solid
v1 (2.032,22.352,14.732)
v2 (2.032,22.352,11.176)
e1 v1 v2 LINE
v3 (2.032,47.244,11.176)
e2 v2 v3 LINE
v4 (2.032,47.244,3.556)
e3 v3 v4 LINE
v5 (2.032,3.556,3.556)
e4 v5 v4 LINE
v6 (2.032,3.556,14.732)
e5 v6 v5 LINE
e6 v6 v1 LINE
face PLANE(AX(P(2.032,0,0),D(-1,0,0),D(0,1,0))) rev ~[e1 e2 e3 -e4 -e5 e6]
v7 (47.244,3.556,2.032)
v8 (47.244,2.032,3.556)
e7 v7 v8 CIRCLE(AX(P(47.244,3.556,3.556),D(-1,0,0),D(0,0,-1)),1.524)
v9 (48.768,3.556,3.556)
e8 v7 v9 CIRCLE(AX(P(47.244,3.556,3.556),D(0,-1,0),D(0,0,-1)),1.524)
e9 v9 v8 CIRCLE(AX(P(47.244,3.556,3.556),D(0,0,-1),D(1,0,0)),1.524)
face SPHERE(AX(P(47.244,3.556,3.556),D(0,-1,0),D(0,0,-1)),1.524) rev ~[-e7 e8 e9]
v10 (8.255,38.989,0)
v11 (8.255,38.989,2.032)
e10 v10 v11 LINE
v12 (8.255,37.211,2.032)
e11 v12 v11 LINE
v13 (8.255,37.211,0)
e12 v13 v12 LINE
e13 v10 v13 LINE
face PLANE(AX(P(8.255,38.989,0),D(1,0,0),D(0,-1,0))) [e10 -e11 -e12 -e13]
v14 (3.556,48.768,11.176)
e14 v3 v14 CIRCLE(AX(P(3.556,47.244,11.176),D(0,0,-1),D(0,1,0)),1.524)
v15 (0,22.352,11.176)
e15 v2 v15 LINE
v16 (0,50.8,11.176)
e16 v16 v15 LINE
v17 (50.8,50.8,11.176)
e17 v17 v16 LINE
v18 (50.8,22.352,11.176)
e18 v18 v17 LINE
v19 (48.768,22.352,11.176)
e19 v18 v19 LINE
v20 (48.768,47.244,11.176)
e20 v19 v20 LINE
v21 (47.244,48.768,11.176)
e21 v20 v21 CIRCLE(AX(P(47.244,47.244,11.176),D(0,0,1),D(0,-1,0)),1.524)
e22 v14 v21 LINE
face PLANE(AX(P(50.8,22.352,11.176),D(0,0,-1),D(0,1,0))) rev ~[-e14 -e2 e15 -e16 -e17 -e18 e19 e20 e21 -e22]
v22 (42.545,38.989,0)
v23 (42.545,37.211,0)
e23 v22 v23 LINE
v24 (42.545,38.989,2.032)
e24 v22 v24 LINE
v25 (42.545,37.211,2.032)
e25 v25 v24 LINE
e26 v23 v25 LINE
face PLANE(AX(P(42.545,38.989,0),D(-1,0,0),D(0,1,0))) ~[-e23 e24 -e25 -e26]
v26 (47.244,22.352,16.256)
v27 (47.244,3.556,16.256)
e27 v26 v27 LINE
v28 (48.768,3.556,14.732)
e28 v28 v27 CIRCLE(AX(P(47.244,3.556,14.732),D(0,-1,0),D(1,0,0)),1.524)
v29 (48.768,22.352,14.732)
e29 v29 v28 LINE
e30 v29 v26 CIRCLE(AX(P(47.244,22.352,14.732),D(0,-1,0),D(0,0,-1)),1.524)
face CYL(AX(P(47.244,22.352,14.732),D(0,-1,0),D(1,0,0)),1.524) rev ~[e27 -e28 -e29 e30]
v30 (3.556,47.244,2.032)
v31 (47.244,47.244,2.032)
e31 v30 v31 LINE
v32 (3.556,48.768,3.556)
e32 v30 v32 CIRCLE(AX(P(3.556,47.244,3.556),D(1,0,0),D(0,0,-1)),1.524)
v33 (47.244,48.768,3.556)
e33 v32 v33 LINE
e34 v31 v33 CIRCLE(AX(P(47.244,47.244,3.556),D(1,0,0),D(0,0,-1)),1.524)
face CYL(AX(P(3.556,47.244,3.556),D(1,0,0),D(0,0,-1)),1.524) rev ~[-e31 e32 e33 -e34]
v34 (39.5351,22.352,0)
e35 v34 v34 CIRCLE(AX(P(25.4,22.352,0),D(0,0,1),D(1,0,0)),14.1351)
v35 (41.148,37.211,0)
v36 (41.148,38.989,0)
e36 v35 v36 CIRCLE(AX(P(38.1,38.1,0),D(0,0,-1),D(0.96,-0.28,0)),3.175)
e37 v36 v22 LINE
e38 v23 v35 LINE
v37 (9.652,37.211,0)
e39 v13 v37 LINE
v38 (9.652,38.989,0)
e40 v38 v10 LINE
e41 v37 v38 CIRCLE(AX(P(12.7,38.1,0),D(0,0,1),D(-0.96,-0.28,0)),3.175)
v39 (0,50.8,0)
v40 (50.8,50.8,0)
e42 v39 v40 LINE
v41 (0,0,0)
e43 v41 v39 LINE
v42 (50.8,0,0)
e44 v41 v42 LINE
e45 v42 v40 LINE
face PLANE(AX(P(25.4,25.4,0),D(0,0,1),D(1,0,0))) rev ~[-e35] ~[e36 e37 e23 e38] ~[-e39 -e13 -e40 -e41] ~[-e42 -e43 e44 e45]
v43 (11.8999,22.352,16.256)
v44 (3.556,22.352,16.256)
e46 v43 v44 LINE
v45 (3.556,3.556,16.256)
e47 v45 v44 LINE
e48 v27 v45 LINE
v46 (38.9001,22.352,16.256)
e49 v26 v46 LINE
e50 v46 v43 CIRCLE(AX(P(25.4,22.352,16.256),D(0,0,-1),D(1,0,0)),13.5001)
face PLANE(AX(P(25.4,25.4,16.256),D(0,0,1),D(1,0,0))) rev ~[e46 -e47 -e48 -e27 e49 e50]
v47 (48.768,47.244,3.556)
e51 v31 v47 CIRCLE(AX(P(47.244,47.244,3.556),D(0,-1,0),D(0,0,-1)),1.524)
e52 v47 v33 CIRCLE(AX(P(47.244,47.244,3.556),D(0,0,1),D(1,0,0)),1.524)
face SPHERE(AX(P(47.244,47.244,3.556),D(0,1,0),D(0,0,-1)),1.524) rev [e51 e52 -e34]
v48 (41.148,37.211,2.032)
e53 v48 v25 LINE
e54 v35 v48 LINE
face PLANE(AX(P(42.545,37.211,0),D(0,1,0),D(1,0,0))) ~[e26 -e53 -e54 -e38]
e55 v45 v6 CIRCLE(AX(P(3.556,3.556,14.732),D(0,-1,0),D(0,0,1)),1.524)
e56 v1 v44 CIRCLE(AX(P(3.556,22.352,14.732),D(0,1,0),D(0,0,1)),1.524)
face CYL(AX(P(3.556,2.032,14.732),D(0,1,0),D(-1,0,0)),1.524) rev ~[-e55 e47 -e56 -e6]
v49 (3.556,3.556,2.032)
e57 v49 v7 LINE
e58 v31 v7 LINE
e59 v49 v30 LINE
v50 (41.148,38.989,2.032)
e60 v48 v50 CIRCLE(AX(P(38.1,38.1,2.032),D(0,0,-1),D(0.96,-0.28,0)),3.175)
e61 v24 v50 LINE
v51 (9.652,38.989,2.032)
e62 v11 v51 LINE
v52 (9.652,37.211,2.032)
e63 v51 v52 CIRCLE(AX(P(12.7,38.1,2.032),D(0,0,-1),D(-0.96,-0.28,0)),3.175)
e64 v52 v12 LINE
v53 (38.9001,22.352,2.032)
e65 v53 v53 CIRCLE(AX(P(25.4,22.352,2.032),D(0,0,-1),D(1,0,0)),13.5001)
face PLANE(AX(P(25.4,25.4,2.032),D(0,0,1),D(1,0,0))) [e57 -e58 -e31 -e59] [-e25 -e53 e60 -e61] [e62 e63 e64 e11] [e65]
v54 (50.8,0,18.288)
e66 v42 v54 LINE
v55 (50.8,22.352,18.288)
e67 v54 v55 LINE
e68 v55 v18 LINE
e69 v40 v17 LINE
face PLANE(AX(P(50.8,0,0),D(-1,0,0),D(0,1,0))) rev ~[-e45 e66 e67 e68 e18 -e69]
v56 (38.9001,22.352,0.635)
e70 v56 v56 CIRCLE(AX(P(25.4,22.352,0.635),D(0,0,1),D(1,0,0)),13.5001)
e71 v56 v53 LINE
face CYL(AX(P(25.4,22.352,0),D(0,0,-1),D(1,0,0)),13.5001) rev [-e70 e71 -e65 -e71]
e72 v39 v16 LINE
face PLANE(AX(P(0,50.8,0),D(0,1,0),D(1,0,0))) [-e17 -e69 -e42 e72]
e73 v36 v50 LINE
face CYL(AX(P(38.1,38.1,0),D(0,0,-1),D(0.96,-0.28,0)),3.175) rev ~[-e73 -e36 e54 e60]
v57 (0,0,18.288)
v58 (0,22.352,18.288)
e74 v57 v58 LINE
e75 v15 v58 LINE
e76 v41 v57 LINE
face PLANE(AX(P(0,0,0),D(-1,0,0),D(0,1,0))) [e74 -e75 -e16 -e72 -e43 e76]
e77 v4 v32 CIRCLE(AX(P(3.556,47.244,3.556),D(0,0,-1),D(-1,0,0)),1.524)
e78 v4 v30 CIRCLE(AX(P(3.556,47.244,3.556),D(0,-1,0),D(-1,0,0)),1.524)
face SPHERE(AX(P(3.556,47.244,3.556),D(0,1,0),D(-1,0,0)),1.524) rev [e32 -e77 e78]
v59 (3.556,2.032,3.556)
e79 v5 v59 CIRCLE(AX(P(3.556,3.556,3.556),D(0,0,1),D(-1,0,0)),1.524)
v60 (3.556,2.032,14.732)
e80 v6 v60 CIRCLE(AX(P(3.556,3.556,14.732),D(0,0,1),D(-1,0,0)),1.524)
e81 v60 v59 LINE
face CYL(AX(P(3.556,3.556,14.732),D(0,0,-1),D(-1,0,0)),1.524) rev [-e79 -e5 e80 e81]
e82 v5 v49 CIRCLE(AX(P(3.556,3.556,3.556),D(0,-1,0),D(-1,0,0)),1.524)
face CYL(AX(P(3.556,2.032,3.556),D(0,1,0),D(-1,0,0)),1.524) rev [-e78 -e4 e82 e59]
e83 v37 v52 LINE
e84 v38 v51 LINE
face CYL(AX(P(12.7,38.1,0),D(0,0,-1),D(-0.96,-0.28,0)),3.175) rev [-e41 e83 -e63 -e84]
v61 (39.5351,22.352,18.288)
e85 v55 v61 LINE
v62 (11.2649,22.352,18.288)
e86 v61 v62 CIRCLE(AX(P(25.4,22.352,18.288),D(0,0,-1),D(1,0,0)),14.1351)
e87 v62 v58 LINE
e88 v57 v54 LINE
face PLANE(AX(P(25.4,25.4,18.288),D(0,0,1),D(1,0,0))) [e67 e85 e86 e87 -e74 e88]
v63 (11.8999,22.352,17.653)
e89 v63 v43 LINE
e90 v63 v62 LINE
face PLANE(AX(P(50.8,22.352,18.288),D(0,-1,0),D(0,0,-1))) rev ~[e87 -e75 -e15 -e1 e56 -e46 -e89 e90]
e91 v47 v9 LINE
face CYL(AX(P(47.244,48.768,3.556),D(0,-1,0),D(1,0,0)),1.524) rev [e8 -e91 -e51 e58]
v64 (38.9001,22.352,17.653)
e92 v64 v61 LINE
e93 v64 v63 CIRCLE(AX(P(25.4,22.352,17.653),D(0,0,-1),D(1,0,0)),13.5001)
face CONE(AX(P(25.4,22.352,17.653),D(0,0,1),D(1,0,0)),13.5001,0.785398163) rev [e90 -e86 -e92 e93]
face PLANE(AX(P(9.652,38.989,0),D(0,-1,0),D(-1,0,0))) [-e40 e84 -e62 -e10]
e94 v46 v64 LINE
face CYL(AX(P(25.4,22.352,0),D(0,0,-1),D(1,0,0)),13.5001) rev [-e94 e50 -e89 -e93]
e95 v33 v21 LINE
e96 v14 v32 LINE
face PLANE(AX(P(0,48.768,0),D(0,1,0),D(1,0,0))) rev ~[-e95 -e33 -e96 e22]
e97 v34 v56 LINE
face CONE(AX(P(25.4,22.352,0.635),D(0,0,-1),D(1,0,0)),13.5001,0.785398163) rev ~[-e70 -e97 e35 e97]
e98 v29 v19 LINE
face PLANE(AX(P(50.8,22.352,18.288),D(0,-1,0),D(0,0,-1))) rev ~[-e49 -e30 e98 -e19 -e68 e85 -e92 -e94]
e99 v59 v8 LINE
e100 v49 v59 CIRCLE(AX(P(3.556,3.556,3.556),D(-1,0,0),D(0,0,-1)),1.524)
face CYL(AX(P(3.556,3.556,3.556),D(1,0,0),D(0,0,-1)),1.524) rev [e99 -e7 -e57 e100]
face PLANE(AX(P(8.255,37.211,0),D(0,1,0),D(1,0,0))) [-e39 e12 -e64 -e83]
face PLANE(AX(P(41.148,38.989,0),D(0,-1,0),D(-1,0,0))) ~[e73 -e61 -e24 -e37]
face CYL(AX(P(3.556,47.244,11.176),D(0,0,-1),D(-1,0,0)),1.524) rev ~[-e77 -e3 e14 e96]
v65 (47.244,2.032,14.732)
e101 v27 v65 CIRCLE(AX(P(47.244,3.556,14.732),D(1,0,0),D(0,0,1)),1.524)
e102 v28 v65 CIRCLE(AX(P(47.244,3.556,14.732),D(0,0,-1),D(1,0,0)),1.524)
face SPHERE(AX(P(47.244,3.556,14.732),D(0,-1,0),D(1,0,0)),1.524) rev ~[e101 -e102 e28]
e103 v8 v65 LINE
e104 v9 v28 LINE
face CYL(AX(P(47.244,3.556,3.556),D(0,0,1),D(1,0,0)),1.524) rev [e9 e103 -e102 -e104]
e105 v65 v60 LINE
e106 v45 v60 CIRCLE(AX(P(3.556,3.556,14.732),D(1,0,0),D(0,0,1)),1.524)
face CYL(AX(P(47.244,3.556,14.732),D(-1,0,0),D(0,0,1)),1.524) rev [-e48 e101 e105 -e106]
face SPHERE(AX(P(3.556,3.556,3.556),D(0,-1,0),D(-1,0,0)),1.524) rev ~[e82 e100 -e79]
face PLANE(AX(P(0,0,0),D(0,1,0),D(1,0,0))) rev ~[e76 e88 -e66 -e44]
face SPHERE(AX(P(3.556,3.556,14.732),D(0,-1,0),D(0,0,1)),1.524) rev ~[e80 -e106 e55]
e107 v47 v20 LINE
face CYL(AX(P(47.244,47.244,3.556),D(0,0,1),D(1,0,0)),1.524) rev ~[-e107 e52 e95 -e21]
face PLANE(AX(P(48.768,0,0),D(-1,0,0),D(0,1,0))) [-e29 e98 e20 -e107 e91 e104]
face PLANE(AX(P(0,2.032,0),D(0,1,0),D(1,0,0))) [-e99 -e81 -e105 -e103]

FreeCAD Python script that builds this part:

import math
import FreeCAD as App
import Part
import Sketcher

V = App.Vector
Q = App.Units.Quantity


def edges_at(feature, points):
    """Names of the edges that pass closest to the given points."""
    edges = feature.Shape.Edges
    near = lambda p: min(range(len(edges)), key=lambda i: edges[i].distToShape(Part.Vertex(*p))[0])
    return sorted({f"Edge{near(p) + 1}" for p in points})


def faces_at(feature, points):
    """Names of the faces that lie closest to the given points."""
    faces = feature.Shape.Faces
    near = lambda p: min(range(len(faces)), key=lambda i: faces[i].distToShape(Part.Vertex(*p))[0])
    return sorted({f"Face{near(p) + 1}" for p in points})

doc = App.newDocument("Part")
body = doc.addObject("PartDesign::Body", "Body")

# Sketch on XY plane
sketch1 = doc.addObject("Sketcher::SketchObject", "Sketch")
body.addObject(sketch1)
sketch1.AttachmentSupport = (doc.XY_Plane, [""])
sketch1.MapMode = "FlatFace"
sketch1.addGeometry([
    Part.LineSegment(V(0, 51, 0), V(0, 0, 0)),
    Part.LineSegment(V(0, 0, 0), V(51, 0, 0)),
    Part.LineSegment(V(51, 0, 0), V(51, 51, 0)),
    Part.LineSegment(V(51, 51, 0), V(0, 51, 0)),
], False)
sketch1.addConstraint([
    Sketcher.Constraint("Coincident", 0, 2, 1, 1),
    Sketcher.Constraint("Coincident", 1, 2, 2, 1),
    Sketcher.Constraint("Coincident", 2, 2, 3, 1),
    Sketcher.Constraint("Coincident", 3, 2, 0, 1),
    Sketcher.Constraint("Vertical", 0),
    Sketcher.Constraint("Horizontal", 1),
    Sketcher.Constraint("Vertical", 2),
    Sketcher.Constraint("Horizontal", 3),
    Sketcher.Constraint("Coincident", 0, 2, -1, 1),
    Sketcher.Constraint("Equal", 3, 0),
    Sketcher.Constraint("DistanceX", 1, 1, 1, 2, Q("2 in")),
])
pad1 = doc.addObject("PartDesign::Pad", "Pad")
body.addObject(pad1)
pad1.Profile = sketch1
pad1.Length = Q("0.72 in")

# Sketch on YZ plane
sketch2 = doc.addObject("Sketcher::SketchObject", "Sketch001")
body.addObject(sketch2)
sketch2.AttachmentSupport = (doc.YZ_Plane, [""])
sketch2.MapMode = "FlatFace"
sketch2.AttachmentOffset = App.Placement(V(0, 0, 2 * 25.4), App.Rotation())
sketch2.addGeometry([
    Part.LineSegment(V(51, 18, 0), V(22, 18, 0)),
    Part.LineSegment(V(22, 18, 0), V(22, 11, 0)),
    Part.LineSegment(V(22, 11, 0), V(51, 11, 0)),
    Part.LineSegment(V(51, 11, 0), V(51, 18, 0)),
], False)
sketch2.addConstraint([
    Sketcher.Constraint("Coincident", 0, 2, 1, 1),
    Sketcher.Constraint("Coincident", 1, 2, 2, 1),
    Sketcher.Constraint("Coincident", 2, 2, 3, 1),
    Sketcher.Constraint("Coincident", 3, 2, 0, 1),
    Sketcher.Constraint("Horizontal", 0),
    Sketcher.Constraint("Vertical", 1),
    Sketcher.Constraint("Horizontal", 2),
    Sketcher.Constraint("Vertical", 3),
    Sketcher.Constraint("DistanceX", -1, 1, 2, 2, Q("2 in")),
    Sketcher.Constraint("DistanceX", 0, 2, 0, 1, Q("1.12 in")),
    Sketcher.Constraint("DistanceY", 1, 2, 1, 1, Q("0.28 in")),
    Sketcher.Constraint("DistanceY", -1, 1, 0, 2, Q("0.72 in")),
])
pocket1 = doc.addObject("PartDesign::Pocket", "Pocket")
body.addObject(pocket1)
pocket1.Profile = sketch2
pocket1.Type = "ThroughAll"
doc.recompute()

thickness = doc.addObject("PartDesign::Thickness", "Thickness")
body.addObject(thickness)
thickness.Base = (pocket1, faces_at(pocket1, [(25.4, 36.576, 11.176), (25.4, 22.352, 14.732)]))
thickness.Value = Q("0.08 in")
thickness.Reversed = True
thickness.Join = "Intersection"

# Sketch on XY plane
sketch3 = doc.addObject("Sketcher::SketchObject", "Sketch002")
body.addObject(sketch3)
sketch3.AttachmentSupport = (doc.XY_Plane, [""])
sketch3.MapMode = "FlatFace"
sketch3.addGeometry(Part.Circle(V(25, 22, 0), V(0, 0, 1), 14), False)
sketch3.addConstraint([
    Sketcher.Constraint("Diameter", 0, Q("1.063 in")),
    Sketcher.Constraint("DistanceX", -1, 1, 0, 3, Q("1 in")),
    Sketcher.Constraint("DistanceY", -1, 1, 0, 3, Q("0.88 in")),
])
pocket2 = doc.addObject("PartDesign::Pocket", "Pocket001")
body.addObject(pocket2)
pocket2.Profile = sketch3
pocket2.Type = "ThroughAll"
pocket2.Reversed = True
doc.recompute()

fillet = doc.addObject("PartDesign::Fillet", "Fillet")
body.addObject(fillet)
fillet.Base = (pocket2, edges_at(pocket2, [
    (2.032, 12.192, 16.256),
    (48.768, 12.192, 16.256),
    (2.032, 25.4, 2.032),
    (48.768, 25.4, 2.032),
]))
fillet.Radius = Q("0.06 in")
doc.recompute()

fillet2 = doc.addObject("PartDesign::Fillet", "Fillet001")
body.addObject(fillet2)
fillet2.Base = (fillet, edges_at(fillet, [
    (2.032, 48.768, 7.366),
    (48.768, 48.768, 7.366),
    (25.4, 2.032, 16.256),
    (25.4, 2.032, 2.032),
    (2.032, 2.032, 9.144),
    (48.768, 2.032, 9.144),
    (2.478, 2.032, 15.81),
    (2.478, 2.032, 2.478),
    (48.322, 2.032, 2.478),
    (48.322, 2.032, 15.81),
    (25.4, 48.768, 2.032),
    (2.478, 48.768, 2.478),
    (48.322, 48.768, 2.478),
]))
fillet2.Radius = Q("0.06 in")
doc.recompute()

chamfer = doc.addObject("PartDesign::Chamfer", "Chamfer")
body.addObject(chamfer)
chamfer.Base = (fillet2, edges_at(fillet2, [(11.9, 22.352, 0), (25.4, 8.852, 18.288)]))
chamfer.Size = Q("0.025 in")

# Sketch on XY plane
sketch4 = doc.addObject("Sketcher::SketchObject", "Sketch003")
body.addObject(sketch4)
sketch4.AttachmentSupport = (doc.XY_Plane, [""])
sketch4.MapMode = "FlatFace"
sketch4.addGeometry([
    Part.LineSegment(V(8.3, 39, 0), V(9.7, 39, 0)),
    Part.ArcOfCircle(Part.Circle(V(12.7, 38.1, 0), V(0, 0, 1), 3.2), math.radians(-164), math.radians(164)),
    Part.LineSegment(V(9.7, 37.2, 0), V(8.3, 37.2, 0)),
    Part.LineSegment(V(8.3, 37.2, 0), V(8.3, 39, 0)),
], False)
sketch4.addConstraint([
    Sketcher.Constraint("Coincident", 0, 2, 1, 2),
    Sketcher.Constraint("Coincident", 1, 1, 2, 1),
    Sketcher.Constraint("Coincident", 2, 2, 3, 1),
    Sketcher.Constraint("Coincident", 3, 2, 0, 1),
    Sketcher.Constraint("Horizontal", 0),
    Sketcher.Constraint("Horizontal", 2),
    Sketcher.Constraint("Vertical", 3),
    Sketcher.Constraint("Vertical", 0, 2, 1, 1),
    Sketcher.Constraint("Radius", 1, Q("0.125 in")),
    Sketcher.Constraint("DistanceY", 3, 1, 3, 2, Q("0.07 in")),
    Sketcher.Constraint("DistanceX", -1, 1, 1, 3, Q("0.5 in")),
    Sketcher.Constraint("DistanceY", -1, 1, 1, 3, Q("1.5 in")),
    Sketcher.Constraint("DistanceX", 0, 1, 0, 2, Q("0.055 in")),
])
pocket3 = doc.addObject("PartDesign::Pocket", "Pocket002")
body.addObject(pocket3)
pocket3.Profile = sketch4
pocket3.Type = "ThroughAll"
pocket3.Reversed = True
doc.recompute()

datumplane = doc.addObject("PartDesign::Plane", "DatumPlane")
body.addObject(datumplane)
datumplane.AttachmentSupport = (doc.YZ_Plane, [""])
datumplane.MapMode = "FlatFace"
datumplane.AttachmentOffset = App.Placement(V(0, 0, 1 * 25.4), App.Rotation())
mirrored = doc.addObject("PartDesign::Mirrored", "Mirrored")
body.addObject(mirrored)
mirrored.Originals = [pocket3]
mirrored.MirrorPlane = (datumplane, [""])
body.Tip = mirrored

doc.recompute()
